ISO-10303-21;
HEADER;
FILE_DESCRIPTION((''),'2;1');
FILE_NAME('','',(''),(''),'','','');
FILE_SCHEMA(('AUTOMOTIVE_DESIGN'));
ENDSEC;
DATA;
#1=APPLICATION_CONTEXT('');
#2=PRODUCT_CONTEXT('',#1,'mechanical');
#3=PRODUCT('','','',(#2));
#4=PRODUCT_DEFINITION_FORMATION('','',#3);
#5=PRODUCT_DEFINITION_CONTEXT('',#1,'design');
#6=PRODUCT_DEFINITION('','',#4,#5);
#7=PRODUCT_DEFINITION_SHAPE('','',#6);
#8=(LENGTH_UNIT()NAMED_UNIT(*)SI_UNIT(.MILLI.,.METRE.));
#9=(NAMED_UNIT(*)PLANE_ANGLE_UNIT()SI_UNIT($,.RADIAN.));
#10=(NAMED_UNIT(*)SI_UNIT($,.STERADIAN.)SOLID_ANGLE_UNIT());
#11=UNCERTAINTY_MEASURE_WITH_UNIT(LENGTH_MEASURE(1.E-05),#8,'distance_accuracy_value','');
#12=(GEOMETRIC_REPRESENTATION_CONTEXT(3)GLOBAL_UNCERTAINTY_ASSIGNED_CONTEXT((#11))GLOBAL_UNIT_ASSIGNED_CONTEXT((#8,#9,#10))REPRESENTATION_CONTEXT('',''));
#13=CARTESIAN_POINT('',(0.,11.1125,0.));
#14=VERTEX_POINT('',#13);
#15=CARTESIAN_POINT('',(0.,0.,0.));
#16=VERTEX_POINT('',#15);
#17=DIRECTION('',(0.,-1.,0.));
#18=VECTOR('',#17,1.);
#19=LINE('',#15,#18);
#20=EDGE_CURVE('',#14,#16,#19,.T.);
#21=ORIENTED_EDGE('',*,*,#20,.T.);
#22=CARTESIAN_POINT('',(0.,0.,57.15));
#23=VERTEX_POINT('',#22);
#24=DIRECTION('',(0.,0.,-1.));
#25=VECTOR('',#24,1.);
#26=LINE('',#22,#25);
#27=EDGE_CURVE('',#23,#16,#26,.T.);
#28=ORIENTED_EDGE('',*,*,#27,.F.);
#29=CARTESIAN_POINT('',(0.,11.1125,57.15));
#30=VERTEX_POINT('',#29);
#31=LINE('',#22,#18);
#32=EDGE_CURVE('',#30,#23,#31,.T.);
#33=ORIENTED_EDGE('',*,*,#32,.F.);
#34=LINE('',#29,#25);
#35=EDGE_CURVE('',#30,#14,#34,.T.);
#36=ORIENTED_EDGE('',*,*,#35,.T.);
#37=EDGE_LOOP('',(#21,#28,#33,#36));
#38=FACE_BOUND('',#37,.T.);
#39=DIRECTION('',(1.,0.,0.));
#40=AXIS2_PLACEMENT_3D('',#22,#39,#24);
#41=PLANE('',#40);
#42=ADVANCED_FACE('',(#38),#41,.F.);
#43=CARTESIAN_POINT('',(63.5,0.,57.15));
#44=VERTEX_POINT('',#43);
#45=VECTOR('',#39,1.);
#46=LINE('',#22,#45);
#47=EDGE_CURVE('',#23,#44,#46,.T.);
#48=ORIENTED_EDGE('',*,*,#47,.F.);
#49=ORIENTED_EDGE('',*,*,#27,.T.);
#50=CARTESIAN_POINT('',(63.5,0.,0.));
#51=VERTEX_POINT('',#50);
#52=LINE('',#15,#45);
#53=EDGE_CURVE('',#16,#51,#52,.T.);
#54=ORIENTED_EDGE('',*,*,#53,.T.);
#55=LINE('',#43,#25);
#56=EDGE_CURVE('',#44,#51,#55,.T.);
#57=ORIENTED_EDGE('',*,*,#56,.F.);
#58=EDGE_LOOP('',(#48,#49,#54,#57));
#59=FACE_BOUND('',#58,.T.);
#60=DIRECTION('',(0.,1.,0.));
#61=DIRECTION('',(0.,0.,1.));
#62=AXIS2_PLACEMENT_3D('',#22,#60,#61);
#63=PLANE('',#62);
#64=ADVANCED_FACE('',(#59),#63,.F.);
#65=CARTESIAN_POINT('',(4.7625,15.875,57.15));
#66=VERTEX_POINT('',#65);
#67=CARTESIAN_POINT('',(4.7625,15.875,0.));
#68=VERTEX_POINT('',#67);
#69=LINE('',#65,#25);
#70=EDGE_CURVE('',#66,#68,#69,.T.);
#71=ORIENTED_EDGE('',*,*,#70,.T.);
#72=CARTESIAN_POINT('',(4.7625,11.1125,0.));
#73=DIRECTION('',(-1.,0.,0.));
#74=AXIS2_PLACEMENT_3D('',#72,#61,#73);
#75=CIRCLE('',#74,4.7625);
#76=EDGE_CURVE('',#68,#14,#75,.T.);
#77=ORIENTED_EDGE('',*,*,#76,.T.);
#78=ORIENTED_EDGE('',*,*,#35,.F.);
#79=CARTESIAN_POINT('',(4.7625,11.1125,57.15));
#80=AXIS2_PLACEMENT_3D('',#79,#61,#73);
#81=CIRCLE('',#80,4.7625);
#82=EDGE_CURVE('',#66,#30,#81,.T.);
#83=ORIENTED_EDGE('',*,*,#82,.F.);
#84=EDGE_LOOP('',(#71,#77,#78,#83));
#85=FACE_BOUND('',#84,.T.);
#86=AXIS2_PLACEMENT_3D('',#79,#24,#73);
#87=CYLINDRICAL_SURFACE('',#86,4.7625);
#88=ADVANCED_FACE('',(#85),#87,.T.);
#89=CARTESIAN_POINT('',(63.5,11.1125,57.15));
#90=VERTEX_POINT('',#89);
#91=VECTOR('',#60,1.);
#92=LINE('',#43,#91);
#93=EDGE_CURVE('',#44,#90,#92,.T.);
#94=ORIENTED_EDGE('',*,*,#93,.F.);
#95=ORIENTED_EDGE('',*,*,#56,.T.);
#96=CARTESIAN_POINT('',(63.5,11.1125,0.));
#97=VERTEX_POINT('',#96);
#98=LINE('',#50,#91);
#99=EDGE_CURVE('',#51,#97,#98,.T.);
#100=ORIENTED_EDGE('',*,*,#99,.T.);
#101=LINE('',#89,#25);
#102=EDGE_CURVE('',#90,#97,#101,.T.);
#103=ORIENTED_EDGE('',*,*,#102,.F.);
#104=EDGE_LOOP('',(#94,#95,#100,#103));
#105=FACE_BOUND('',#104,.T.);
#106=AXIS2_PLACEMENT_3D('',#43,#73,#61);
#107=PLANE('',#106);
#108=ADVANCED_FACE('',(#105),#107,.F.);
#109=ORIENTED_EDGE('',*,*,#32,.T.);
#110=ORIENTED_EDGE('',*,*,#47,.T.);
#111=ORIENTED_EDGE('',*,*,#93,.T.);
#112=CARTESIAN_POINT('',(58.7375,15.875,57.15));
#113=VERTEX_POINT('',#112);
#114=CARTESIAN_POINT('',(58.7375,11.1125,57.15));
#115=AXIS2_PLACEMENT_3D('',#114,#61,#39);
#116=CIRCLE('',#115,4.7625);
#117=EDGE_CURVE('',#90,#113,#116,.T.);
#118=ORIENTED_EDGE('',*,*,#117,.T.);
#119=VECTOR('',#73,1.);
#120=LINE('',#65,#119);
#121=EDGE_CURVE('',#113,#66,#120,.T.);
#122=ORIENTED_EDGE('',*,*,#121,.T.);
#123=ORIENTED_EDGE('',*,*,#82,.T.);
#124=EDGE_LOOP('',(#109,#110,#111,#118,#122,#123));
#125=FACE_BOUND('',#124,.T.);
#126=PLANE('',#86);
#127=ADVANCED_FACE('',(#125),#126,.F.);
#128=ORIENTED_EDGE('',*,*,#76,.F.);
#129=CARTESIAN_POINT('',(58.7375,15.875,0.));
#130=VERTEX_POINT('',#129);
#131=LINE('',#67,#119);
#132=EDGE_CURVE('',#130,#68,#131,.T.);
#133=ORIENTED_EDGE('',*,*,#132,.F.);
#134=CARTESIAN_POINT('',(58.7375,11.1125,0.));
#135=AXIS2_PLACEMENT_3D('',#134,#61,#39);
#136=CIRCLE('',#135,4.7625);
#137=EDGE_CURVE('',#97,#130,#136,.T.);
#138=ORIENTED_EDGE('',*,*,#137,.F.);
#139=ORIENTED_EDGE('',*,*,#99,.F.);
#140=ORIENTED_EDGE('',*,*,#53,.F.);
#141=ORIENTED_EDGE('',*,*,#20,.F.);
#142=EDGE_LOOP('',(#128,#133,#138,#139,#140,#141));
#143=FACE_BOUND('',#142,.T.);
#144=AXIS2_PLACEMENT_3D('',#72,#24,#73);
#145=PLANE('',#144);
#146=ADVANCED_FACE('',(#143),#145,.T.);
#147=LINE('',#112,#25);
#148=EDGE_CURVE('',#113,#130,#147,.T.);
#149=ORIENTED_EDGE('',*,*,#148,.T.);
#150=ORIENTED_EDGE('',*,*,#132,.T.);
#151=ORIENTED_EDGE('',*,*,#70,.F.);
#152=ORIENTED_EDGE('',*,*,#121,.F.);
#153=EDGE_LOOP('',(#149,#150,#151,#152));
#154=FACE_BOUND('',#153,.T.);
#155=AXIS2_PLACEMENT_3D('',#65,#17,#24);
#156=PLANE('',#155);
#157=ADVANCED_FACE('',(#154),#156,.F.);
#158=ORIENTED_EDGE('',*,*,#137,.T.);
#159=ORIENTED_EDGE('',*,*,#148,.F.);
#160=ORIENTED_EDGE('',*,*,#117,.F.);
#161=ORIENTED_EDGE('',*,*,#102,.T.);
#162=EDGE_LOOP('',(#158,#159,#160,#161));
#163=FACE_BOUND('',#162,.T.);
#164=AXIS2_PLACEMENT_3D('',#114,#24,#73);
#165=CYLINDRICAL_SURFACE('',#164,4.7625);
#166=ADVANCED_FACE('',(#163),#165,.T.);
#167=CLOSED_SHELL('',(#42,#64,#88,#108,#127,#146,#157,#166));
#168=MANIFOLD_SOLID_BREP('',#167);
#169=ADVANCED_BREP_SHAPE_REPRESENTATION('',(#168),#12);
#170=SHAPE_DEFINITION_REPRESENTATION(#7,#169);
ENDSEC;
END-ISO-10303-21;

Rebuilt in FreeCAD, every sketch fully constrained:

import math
import FreeCAD as App
import Part
import Sketcher
Q = App.Units.Quantity

doc = App.newDocument("Part")
body = doc.addObject("PartDesign::Body", "Body")

# Sketch on XY plane
sketch1 = body.newObject("Sketcher::SketchObject", "Sketch")
sketch1.AttachmentSupport = (doc.getObject("XY_Plane"), [""])
sketch1.MapMode = "FlatFace"
sketch1.addGeometry([
    Part.LineSegment(App.Vector(0, 0, 0), App.Vector(63.5, 0, 0)),  # 0
    Part.LineSegment(App.Vector(63.5, 0, 0), App.Vector(63.5, 11.1, 0)),  # 1
    Part.ArcOfCircle(Part.Circle(App.Vector(58.7, 11.1, 0), App.Vector(0, 0, 1), 4.8), math.radians(0), math.radians(90)),  # 2
    Part.LineSegment(App.Vector(58.7, 15.9, 0), App.Vector(4.8, 15.9, 0)),  # 3
    Part.ArcOfCircle(Part.Circle(App.Vector(4.8, 11.1, 0), App.Vector(0, 0, 1), 4.8), math.radians(90), math.radians(180)),  # 4
    Part.LineSegment(App.Vector(0, 11.1, 0), App.Vector(0, 0, 0)),  # 5
], False)
sketch1.addConstraint([
    Sketcher.Constraint("Coincident", 0, 2, 1, 1),
    Sketcher.Constraint("Tangent", 1, 2, 2, 1),
    Sketcher.Constraint("Tangent", 2, 2, 3, 1),
    Sketcher.Constraint("Tangent", 3, 2, 4, 1),
    Sketcher.Constraint("Tangent", 4, 2, 5, 1),
    Sketcher.Constraint("Coincident", 5, 2, 0, 1),
    Sketcher.Constraint("Horizontal", 0),
    Sketcher.Constraint("Vertical", 1),
    Sketcher.Constraint("Horizontal", 3),
    Sketcher.Constraint("Vertical", 5),
    Sketcher.Constraint("Coincident", 5, 2, -1, 1),
    Sketcher.Constraint("Equal", 2, 4),
    Sketcher.Constraint("DistanceX", 0, 1, 0, 2, Q("2.5 in")),
    Sketcher.Constraint("Radius", 2, Q("0.1875 in")),
    Sketcher.Constraint("DistanceY", 1, 1, 1, 2, Q("0.4375 in")),
])
pad1 = body.newObject("PartDesign::Pad", "Pad")
pad1.Profile = sketch1
pad1.Length = Q("2.25 in")

doc.recompute()
